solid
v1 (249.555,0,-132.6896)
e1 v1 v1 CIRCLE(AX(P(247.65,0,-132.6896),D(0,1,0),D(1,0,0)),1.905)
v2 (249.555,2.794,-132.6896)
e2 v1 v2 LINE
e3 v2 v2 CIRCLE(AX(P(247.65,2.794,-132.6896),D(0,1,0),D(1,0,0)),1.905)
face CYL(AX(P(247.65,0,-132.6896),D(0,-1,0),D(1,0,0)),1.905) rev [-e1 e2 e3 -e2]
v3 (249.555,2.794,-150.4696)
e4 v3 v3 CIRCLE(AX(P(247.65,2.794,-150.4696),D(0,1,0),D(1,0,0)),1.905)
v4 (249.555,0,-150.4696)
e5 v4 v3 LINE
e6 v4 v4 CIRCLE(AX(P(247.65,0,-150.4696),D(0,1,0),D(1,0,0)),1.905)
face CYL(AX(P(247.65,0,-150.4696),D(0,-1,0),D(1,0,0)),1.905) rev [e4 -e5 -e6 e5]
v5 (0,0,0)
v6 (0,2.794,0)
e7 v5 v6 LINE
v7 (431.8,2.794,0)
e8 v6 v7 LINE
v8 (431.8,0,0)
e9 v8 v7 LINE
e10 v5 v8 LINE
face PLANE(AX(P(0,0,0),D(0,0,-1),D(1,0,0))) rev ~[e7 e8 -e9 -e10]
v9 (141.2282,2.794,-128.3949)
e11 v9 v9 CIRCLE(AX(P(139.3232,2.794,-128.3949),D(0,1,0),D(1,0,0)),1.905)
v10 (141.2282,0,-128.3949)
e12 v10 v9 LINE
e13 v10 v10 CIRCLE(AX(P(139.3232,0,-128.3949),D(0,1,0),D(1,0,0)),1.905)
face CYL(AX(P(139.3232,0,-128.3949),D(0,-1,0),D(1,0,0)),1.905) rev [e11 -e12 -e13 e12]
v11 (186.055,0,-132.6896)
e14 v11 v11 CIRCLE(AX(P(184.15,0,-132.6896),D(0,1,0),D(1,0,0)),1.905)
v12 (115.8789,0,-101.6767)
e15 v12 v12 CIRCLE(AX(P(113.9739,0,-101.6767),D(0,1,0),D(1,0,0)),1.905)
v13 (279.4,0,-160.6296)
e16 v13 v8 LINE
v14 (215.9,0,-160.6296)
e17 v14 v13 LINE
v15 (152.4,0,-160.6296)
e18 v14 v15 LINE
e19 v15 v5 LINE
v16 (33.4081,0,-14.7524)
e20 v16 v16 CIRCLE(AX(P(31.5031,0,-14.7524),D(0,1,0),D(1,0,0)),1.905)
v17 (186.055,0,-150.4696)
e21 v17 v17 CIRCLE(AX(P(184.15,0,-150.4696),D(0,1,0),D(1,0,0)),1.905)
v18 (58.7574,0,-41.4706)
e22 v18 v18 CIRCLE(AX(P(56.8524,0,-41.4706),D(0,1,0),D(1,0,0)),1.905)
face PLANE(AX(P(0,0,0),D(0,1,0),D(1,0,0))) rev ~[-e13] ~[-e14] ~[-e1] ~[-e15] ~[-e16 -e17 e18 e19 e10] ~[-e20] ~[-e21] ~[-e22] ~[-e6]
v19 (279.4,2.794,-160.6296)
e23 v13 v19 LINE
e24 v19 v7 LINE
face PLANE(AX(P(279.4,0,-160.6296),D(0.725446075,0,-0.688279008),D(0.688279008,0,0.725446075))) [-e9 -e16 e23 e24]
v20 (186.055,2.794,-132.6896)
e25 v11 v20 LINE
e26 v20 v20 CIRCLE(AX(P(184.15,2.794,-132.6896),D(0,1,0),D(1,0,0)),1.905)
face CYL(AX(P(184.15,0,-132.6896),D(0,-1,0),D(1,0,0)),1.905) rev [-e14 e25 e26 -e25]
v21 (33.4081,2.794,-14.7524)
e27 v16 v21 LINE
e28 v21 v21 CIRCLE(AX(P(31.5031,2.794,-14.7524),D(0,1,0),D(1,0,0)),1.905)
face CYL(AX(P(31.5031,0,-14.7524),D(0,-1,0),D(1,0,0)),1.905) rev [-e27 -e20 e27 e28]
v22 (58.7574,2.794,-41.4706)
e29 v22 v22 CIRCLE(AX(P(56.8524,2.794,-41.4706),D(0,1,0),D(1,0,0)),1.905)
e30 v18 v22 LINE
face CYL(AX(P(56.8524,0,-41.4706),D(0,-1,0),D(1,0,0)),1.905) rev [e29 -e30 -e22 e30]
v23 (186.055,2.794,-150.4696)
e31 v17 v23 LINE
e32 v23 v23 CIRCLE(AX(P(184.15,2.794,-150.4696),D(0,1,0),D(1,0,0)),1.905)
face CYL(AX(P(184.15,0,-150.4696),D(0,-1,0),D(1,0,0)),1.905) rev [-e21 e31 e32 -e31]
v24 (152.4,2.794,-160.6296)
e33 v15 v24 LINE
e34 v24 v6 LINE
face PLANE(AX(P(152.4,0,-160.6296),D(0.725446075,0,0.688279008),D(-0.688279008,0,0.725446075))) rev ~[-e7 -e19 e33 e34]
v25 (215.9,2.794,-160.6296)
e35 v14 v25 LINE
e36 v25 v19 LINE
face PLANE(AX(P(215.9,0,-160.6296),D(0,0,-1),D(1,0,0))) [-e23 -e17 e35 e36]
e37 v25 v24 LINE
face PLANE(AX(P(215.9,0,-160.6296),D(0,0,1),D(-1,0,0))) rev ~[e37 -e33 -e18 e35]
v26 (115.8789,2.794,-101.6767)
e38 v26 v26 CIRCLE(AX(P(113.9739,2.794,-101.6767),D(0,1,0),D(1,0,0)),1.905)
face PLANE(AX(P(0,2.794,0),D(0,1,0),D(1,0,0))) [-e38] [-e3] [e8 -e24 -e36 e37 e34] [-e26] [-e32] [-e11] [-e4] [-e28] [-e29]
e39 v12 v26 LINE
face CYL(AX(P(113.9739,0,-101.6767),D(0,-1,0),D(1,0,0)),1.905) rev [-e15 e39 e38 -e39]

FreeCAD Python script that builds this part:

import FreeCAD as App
import Part
import Sketcher
Q = App.Units.Quantity

doc = App.newDocument("Part")
body = doc.addObject("PartDesign::Body", "Body")

sketch1 = doc.addObject("Sketcher::SketchObject", "Sketch")
body.addObject(sketch1)
sketch1.AttachmentSupport = (doc.XZ_Plane, [""])
sketch1.MapMode = "FlatFace"
sketch1.addGeometry(Part.LineSegment(App.Vector(152.4, -160.6296, 0), App.Vector(0, 0, 0)), False)
sketch1.addGeometry(Part.LineSegment(App.Vector(0, 0, 0), App.Vector(431.8, 0, 0)), False)
sketch1.addGeometry(Part.LineSegment(App.Vector(431.8, 0, 0), App.Vector(279.4, -160.6296, 0)), False)
sketch1.addGeometry(Part.LineSegment(App.Vector(279.4, -160.6296, 0), App.Vector(152.4, -160.6296, 0)), False)
sketch1.addGeometry(Part.Circle(App.Vector(31.5031, -14.7524, 0), App.Vector(0, 0, 1), 1.905), False)
sketch1.addGeometry(Part.Circle(App.Vector(56.8524, -41.4706, 0), App.Vector(0, 0, 1), 1.905), False)
sketch1.addGeometry(Part.Circle(App.Vector(113.9739, -101.6767, 0), App.Vector(0, 0, 1), 1.905), False)
sketch1.addGeometry(Part.Circle(App.Vector(139.3232, -128.3949, 0), App.Vector(0, 0, 1), 1.905), False)
sketch1.addGeometry(Part.Circle(App.Vector(184.15, -132.6896, 0), App.Vector(0, 0, 1), 1.905), False)
sketch1.addGeometry(Part.Circle(App.Vector(184.15, -150.4696, 0), App.Vector(0, 0, 1), 1.905), False)
sketch1.addGeometry(Part.Circle(App.Vector(247.65, -132.6896, 0), App.Vector(0, 0, 1), 1.905), False)
sketch1.addGeometry(Part.Circle(App.Vector(247.65, -150.4696, 0), App.Vector(0, 0, 1), 1.905), False)
sketch1.addConstraint(Sketcher.Constraint("Coincident", 0, 2, 1, 1))
sketch1.addConstraint(Sketcher.Constraint("Coincident", 1, 2, 2, 1))
sketch1.addConstraint(Sketcher.Constraint("Coincident", 2, 2, 3, 1))
sketch1.addConstraint(Sketcher.Constraint("Coincident", 3, 2, 0, 1))
sketch1.addConstraint(Sketcher.Constraint("Horizontal", 1))
sketch1.addConstraint(Sketcher.Constraint("Horizontal", 3))
sketch1.addConstraint(Sketcher.Constraint("Coincident", 0, 2, -1, 1))
sketch1.addConstraint(Sketcher.Constraint("Equal", 4, 5))
sketch1.addConstraint(Sketcher.Constraint("Equal", 5, 6))
sketch1.addConstraint(Sketcher.Constraint("Equal", 6, 7))
sketch1.addConstraint(Sketcher.Constraint("Equal", 7, 8))
sketch1.addConstraint(Sketcher.Constraint("Equal", 8, 9))
sketch1.addConstraint(Sketcher.Constraint("Equal", 9, 10))
sketch1.addConstraint(Sketcher.Constraint("Equal", 10, 11))
sketch1.addConstraint(Sketcher.Constraint("Horizontal", 8, 3, 10, 3))
sketch1.addConstraint(Sketcher.Constraint("Horizontal", 9, 3, 11, 3))
sketch1.addConstraint(Sketcher.Constraint("Vertical", 8, 3, 9, 3))
sketch1.addConstraint(Sketcher.Constraint("Vertical", 10, 3, 11, 3))
sketch1.addConstraint(Sketcher.Constraint("Equal", 0, 2))
sketch1.addConstraint(Sketcher.Constraint("DistanceX", 1, 1, 1, 2, Q("17 in")))
sketch1.addConstraint(Sketcher.Constraint("DistanceX", 8, 3, 10, 3, Q("2.5 in")))
sketch1.addConstraint(Sketcher.Constraint("Diameter", 4, Q("0.15 in")))
sketch1.addConstraint(Sketcher.Constraint("DistanceX", 3, 2, 3, 1, Q("5 in")))
sketch1.addConstraint(Sketcher.Constraint("DistanceY", 9, 3, 8, 3, Q("0.7 in")))
sketch1.addConstraint(Sketcher.Constraint("DistanceY", 2, 2, 11, 3, Q("0.4 in")))
sketch1.addConstraint(Sketcher.Constraint("DistanceX", -1, 1, 8, 3, Q("7.25 in")))
sketch1.addConstraint(Sketcher.Constraint("DistanceY", 8, 3, -1, 1, Q("5.224 in")))
sketch1.addConstraint(Sketcher.Constraint("DistanceX", 4, 3, 5, 3, Q("0.998 in")))
sketch1.addConstraint(Sketcher.Constraint("DistanceX", 6, 3, 7, 3, Q("0.998 in")))
sketch1.addConstraint(Sketcher.Constraint("DistanceY", 4, 3, -1, 1, Q("0.5808 in")))
sketch1.addConstraint(Sketcher.Constraint("DistanceY", 5, 3, -1, 1, Q("1.6327 in")))
sketch1.addConstraint(Sketcher.Constraint("DistanceY", 7, 3, 6, 3, Q("1.0519 in")))
sketch1.addConstraint(Sketcher.Constraint("DistanceX", -1, 1, 4, 3, Q("31.503 mm")))
sketch1.addConstraint(Sketcher.Constraint("DistanceX", -1, 1, 6, 3, Q("113.974 mm")))
sketch1.addConstraint(Sketcher.Constraint("DistanceY", 6, 3, -1, 1, Q("101.6767 mm")))
pad1 = doc.addObject("PartDesign::Pad", "Pad")
body.addObject(pad1)
pad1.Profile = sketch1
pad1.Length = Q("0.11 in")
pad1.Reversed = True

doc.recompute()
